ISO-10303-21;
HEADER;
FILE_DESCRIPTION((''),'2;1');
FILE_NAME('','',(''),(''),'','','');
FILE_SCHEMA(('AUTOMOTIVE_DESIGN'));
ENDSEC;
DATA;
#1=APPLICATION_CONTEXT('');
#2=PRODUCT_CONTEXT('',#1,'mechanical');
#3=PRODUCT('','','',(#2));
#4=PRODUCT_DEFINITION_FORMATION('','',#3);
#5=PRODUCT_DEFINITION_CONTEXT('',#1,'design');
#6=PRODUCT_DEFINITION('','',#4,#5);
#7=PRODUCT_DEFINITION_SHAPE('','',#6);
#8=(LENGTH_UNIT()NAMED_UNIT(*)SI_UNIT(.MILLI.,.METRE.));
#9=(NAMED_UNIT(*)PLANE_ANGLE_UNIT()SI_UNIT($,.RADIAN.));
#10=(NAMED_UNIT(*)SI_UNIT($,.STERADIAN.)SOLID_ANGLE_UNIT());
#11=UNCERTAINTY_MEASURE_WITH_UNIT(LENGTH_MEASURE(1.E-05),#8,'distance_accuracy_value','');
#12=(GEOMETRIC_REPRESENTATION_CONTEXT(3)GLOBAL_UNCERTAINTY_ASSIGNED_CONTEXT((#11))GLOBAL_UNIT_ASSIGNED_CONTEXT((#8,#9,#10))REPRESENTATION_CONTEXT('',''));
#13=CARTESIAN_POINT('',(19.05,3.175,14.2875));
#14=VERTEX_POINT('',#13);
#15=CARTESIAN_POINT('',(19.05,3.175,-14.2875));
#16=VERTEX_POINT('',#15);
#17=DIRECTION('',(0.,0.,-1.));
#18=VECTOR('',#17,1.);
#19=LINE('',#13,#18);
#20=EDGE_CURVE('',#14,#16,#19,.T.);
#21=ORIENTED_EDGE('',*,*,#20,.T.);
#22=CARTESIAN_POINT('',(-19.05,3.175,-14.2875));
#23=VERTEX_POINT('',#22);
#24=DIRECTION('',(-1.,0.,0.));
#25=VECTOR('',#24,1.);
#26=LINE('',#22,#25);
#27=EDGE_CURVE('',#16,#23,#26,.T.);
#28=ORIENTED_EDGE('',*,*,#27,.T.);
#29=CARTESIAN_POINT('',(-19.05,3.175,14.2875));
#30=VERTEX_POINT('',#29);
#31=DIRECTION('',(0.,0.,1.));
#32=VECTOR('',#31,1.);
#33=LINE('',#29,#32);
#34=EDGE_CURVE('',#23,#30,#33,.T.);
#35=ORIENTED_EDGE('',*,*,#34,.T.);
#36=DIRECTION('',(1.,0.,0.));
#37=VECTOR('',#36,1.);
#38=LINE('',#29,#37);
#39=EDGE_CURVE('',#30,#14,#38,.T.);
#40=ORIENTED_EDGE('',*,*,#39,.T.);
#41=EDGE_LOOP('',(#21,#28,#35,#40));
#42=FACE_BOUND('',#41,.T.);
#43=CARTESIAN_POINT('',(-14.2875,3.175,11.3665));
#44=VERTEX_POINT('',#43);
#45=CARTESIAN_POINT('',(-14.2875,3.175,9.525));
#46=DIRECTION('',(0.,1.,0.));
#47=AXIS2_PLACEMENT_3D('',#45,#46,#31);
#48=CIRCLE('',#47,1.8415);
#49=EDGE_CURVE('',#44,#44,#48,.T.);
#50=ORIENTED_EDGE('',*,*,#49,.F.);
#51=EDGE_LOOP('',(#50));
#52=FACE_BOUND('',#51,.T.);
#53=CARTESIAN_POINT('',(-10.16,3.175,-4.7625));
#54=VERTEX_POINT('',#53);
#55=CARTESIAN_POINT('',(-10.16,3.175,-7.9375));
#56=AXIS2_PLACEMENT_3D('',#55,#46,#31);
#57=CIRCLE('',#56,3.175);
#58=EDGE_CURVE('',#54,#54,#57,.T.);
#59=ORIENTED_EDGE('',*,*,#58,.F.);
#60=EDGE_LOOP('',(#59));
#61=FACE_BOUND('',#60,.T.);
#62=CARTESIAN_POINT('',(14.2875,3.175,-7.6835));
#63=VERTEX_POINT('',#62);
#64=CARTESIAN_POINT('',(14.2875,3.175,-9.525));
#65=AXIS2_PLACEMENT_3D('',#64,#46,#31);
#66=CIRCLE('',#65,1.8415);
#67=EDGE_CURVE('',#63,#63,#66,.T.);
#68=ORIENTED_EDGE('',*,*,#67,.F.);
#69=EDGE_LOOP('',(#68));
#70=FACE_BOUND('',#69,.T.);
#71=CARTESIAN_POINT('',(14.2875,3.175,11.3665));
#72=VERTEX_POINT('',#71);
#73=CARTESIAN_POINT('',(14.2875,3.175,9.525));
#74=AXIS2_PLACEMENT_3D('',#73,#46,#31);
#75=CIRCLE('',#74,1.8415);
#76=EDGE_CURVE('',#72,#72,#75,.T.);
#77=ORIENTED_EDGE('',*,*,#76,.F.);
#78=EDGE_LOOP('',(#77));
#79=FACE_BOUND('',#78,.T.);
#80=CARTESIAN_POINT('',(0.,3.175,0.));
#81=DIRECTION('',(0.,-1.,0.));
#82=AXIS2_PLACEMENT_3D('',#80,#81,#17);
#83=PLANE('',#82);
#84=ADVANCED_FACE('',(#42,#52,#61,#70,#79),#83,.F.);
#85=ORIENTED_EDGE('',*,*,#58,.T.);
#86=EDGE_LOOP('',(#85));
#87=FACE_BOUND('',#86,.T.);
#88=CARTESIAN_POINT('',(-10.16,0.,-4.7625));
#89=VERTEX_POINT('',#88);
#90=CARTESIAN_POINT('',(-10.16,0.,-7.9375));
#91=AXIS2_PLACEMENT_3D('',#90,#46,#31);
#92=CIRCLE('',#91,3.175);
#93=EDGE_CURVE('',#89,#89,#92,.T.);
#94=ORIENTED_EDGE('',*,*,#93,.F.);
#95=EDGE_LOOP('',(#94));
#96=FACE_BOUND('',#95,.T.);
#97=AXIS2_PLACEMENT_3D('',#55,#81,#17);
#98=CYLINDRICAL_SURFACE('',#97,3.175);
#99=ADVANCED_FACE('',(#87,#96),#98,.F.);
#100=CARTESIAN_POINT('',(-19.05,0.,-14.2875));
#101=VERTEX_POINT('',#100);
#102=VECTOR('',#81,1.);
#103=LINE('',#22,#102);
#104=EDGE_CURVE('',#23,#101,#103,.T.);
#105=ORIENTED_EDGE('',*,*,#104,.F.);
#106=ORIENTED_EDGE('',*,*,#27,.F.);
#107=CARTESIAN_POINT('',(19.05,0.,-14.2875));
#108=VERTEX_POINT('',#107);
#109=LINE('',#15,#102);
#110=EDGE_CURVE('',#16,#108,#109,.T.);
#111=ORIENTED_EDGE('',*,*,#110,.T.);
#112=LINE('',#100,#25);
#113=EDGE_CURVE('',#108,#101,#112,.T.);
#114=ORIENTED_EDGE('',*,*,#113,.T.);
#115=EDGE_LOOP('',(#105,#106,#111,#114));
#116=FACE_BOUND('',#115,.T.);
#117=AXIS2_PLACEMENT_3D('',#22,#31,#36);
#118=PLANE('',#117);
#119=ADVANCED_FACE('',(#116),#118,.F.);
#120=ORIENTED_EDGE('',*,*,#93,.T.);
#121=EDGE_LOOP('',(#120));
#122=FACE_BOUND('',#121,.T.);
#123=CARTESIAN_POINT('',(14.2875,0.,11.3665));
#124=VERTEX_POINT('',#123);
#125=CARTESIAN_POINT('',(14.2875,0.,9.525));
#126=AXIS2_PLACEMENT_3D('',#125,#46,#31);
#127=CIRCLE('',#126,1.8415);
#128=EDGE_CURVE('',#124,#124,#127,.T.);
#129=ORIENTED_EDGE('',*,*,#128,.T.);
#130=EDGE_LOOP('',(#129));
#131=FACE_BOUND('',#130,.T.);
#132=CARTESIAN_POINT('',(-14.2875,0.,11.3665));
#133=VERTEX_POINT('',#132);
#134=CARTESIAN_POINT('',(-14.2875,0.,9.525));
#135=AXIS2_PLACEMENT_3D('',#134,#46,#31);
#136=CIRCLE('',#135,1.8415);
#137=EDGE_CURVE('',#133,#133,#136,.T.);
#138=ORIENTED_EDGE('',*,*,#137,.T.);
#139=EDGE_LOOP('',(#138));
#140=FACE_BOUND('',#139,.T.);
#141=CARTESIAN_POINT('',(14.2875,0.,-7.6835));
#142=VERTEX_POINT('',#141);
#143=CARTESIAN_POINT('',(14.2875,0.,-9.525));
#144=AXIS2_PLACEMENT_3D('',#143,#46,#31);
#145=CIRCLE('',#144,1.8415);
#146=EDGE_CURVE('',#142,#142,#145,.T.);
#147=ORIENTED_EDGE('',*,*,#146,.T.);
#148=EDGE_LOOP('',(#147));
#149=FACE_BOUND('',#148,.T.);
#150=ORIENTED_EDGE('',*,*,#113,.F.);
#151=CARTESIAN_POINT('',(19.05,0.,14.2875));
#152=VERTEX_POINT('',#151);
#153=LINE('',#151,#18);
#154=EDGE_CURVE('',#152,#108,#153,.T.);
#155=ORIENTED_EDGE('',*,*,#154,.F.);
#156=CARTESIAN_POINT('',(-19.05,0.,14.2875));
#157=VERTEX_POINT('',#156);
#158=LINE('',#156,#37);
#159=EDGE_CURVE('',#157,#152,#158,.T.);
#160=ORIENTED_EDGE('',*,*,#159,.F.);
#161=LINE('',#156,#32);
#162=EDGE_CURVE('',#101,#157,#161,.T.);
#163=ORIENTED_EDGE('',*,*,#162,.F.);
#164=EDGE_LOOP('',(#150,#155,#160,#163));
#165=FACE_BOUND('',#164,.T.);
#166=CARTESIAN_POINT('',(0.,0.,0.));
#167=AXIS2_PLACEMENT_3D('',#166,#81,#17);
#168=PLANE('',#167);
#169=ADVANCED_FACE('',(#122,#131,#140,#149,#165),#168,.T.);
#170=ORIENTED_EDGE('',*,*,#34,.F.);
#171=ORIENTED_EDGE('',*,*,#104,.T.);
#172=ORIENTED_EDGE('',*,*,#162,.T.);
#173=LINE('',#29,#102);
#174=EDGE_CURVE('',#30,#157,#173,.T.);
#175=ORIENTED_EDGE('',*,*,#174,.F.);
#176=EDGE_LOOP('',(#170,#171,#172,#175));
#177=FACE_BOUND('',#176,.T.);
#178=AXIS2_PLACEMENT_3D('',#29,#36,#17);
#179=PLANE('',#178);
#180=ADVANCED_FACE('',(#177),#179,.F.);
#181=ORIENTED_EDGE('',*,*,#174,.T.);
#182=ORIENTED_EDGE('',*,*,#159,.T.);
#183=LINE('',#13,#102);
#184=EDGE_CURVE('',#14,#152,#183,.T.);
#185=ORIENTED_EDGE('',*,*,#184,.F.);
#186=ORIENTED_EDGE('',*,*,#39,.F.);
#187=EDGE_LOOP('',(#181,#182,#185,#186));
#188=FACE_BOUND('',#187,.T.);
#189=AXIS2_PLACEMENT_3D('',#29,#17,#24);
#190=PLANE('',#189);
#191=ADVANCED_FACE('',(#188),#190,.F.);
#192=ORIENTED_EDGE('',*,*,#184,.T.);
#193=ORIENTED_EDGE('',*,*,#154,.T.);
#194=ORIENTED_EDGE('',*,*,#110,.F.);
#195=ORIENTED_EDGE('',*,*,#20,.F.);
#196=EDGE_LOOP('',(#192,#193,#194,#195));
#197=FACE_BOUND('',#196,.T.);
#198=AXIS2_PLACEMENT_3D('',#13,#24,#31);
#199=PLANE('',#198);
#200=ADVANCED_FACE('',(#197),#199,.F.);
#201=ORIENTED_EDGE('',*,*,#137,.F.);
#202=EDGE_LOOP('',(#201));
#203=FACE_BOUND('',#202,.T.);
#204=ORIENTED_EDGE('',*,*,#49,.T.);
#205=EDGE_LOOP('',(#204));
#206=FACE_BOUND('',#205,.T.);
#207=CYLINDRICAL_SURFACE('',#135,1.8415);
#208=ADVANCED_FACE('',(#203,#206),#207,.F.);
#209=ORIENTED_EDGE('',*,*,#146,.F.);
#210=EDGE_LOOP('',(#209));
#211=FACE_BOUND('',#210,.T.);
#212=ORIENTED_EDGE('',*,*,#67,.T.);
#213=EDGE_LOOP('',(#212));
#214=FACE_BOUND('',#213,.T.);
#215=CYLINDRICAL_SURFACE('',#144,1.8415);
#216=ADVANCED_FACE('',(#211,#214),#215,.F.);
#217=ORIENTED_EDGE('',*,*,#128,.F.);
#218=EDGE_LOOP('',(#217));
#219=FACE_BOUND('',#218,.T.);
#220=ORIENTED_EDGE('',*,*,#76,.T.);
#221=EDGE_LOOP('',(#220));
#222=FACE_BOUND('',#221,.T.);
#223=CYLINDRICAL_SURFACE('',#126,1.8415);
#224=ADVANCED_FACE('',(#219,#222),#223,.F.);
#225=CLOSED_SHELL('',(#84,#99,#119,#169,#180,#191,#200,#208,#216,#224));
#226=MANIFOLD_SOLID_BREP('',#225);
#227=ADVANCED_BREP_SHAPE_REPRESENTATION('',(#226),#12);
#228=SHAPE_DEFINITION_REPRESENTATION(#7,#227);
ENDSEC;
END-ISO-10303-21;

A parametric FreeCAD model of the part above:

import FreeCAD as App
import Part
import Sketcher

V = App.Vector
Q = App.Units.Quantity

doc = App.newDocument("Part")
body = doc.addObject("PartDesign::Body", "Body")

# Sketch on XZ plane
sketch1 = body.newObject("Sketcher::SketchObject", "Sketch")
sketch1.AttachmentSupport = (doc.getObject("XZ_Plane"), [""])
sketch1.MapMode = "FlatFace"
sketch1.addGeometry([
    Part.LineSegment(V(-19.1, -14.3, 0), V(-19.1, 14.3, 0)),  # 0
    Part.LineSegment(V(-19.1, 14.3, 0), V(19.1, 14.3, 0)),  # 1
    Part.LineSegment(V(19.1, 14.3, 0), V(19.1, -14.3, 0)),  # 2
    Part.LineSegment(V(19.1, -14.3, 0), V(-19.1, -14.3, 0)),  # 3
    Part.Circle(V(-10.2, -7.9, 0), V(0, 0, 1), 3.2),  # 4
], False)
sketch1.addConstraint([
    Sketcher.Constraint("Coincident", 0, 2, 1, 1),
    Sketcher.Constraint("Coincident", 1, 2, 2, 1),
    Sketcher.Constraint("Coincident", 2, 2, 3, 1),
    Sketcher.Constraint("Coincident", 3, 2, 0, 1),
    Sketcher.Constraint("Vertical", 0),
    Sketcher.Constraint("Horizontal", 1),
    Sketcher.Constraint("Vertical", 2),
    Sketcher.Constraint("Horizontal", 3),
    Sketcher.Constraint("Symmetric", 0, 2, 2, 2, -1, 1),
    Sketcher.Constraint("Diameter", 4, Q("0.25 in")),
    Sketcher.Constraint("DistanceX", 1, 1, 1, 2, Q("1.5 in")),
    Sketcher.Constraint("DistanceX", 4, 3, -1, 1, Q("0.4 in")),
    Sketcher.Constraint("DistanceY", 0, 1, 0, 2, Q("1.125 in")),
    Sketcher.Constraint("DistanceY", 2, 2, 4, 3, Q("0.25 in")),
])
pad1 = body.newObject("PartDesign::Pad", "Pad")
pad1.Profile = sketch1
pad1.Length = Q("0.125 in")
pad1.Reversed = True

# Sketch on XZ plane
sketch2 = body.newObject("Sketcher::SketchObject", "Sketch001")
sketch2.AttachmentSupport = (doc.getObject("XZ_Plane"), [""])
sketch2.MapMode = "FlatFace"
sketch2.AttachmentOffset = App.Placement(V(0, 0, -0.125 * 25.4), App.Rotation())
sketch2.addGeometry([
    Part.Circle(V(-14.3, 9.5, 0), V(0, 0, 1), 1.8),
    Part.Circle(V(14.3, 9.5, 0), V(0, 0, 1), 1.8),
    Part.Circle(V(14.3, -9.5, 0), V(0, 0, 1), 1.8),
], False)
sketch2.addConstraint([
    Sketcher.Constraint("Equal", 0, 1),
    Sketcher.Constraint("Equal", 1, 2),
    Sketcher.Constraint("Symmetric", 0, 3, 2, 3, -1, 1),
    Sketcher.Constraint("Symmetric", 0, 3, 1, 3, -2),
    Sketcher.Constraint("Diameter", 0, Q("0.145 in")),
    Sketcher.Constraint("DistanceY", 2, 3, 1, 3, Q("0.75 in")),
    Sketcher.Constraint("DistanceX", 0, 3, -1, 1, Q("0.5625 in")),
])
pocket1 = body.newObject("PartDesign::Pocket", "Pocket")
pocket1.Profile = sketch2
pocket1.Type = "ThroughAll"
pocket1.Reversed = True

doc.recompute()
